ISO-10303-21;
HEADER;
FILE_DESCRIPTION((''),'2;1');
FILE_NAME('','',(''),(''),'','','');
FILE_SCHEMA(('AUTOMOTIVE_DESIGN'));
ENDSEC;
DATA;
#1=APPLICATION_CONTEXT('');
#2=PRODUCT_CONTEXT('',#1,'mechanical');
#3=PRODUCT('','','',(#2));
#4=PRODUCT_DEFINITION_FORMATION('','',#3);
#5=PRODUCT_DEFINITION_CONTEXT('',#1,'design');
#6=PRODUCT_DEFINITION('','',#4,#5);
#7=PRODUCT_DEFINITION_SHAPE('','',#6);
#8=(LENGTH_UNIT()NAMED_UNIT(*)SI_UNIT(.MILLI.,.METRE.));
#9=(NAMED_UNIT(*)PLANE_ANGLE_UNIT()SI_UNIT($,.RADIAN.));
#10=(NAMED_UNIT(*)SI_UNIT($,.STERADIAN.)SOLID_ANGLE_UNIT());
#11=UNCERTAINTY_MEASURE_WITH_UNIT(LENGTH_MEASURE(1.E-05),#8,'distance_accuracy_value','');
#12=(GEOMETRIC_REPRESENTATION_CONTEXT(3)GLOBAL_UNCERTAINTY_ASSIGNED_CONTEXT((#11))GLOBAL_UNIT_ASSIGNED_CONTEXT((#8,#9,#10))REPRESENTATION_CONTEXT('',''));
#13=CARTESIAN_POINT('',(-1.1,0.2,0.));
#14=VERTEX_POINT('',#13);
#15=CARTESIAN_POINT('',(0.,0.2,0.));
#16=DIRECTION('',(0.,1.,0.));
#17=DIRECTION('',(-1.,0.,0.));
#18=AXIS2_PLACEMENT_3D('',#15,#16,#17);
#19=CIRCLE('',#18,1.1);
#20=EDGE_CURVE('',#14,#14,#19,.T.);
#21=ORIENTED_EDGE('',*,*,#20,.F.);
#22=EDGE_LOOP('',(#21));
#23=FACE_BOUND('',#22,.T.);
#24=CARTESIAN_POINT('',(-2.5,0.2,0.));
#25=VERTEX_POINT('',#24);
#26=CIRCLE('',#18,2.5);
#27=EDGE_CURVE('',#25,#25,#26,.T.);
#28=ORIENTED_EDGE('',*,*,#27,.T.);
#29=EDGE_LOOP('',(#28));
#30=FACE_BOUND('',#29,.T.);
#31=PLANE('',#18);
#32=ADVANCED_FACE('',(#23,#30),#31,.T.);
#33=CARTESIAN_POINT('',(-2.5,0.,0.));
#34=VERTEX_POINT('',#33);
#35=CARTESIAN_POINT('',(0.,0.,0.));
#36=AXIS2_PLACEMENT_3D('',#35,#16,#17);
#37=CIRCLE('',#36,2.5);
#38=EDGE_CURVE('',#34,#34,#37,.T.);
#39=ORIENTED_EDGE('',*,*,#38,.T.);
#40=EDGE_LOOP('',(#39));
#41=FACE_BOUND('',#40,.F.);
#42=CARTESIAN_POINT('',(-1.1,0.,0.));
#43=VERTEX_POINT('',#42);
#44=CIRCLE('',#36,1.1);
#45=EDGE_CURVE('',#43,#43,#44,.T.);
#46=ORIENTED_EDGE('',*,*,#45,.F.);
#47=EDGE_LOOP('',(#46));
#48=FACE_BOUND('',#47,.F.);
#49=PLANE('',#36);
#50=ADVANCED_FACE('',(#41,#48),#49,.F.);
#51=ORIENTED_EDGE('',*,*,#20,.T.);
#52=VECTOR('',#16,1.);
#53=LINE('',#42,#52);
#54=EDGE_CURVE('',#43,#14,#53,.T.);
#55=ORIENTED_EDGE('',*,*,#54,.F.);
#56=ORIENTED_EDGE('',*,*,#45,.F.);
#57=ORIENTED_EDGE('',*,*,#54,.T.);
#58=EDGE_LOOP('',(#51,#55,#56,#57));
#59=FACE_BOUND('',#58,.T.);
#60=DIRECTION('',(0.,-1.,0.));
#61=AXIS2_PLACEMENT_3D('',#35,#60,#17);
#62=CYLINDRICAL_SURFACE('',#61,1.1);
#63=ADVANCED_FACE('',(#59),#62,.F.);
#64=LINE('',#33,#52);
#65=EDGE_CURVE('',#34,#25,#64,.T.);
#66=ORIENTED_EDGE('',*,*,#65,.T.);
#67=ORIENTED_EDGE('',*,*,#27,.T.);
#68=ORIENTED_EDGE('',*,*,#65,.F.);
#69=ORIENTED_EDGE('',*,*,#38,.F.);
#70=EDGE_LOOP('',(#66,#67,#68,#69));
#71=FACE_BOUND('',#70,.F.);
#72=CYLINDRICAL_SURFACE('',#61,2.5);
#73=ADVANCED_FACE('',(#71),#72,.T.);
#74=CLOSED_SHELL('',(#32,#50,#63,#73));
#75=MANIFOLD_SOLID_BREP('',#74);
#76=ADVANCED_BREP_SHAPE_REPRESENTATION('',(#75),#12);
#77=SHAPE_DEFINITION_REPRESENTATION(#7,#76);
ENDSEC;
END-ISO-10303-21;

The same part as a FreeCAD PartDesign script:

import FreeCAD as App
import Part
import Sketcher

V = App.Vector
Q = App.Units.Quantity

doc = App.newDocument("Part")
body = doc.addObject("PartDesign::Body", "Body")

sketch1 = body.newObject("Sketcher::SketchObject", "Sketch")
sketch1.AttachmentSupport = (doc.getObject("XZ_Plane"), [""])
sketch1.MapMode = "FlatFace"
sketch1.addGeometry(Part.Circle(V(0, 0, 0), V(0, 0, 1), 2.5), False)
sketch1.addGeometry(Part.Circle(V(0, 0, 0), V(0, 0, 1), 1.1), False)
sketch1.addConstraint(Sketcher.Constraint("Coincident", 0, 3, -1, 1))
sketch1.addConstraint(Sketcher.Constraint("Coincident", 1, 3, -1, 1))
sketch1.addConstraint(Sketcher.Constraint("Diameter", 0, Q("5 mm")))
sketch1.addConstraint(Sketcher.Constraint("Diameter", 1, Q("2.2 mm")))
pad1 = body.newObject("PartDesign::Pad", "Pad")
pad1.Profile = sketch1
pad1.Length = 0.2
pad1.Reversed = True

doc.recompute()
